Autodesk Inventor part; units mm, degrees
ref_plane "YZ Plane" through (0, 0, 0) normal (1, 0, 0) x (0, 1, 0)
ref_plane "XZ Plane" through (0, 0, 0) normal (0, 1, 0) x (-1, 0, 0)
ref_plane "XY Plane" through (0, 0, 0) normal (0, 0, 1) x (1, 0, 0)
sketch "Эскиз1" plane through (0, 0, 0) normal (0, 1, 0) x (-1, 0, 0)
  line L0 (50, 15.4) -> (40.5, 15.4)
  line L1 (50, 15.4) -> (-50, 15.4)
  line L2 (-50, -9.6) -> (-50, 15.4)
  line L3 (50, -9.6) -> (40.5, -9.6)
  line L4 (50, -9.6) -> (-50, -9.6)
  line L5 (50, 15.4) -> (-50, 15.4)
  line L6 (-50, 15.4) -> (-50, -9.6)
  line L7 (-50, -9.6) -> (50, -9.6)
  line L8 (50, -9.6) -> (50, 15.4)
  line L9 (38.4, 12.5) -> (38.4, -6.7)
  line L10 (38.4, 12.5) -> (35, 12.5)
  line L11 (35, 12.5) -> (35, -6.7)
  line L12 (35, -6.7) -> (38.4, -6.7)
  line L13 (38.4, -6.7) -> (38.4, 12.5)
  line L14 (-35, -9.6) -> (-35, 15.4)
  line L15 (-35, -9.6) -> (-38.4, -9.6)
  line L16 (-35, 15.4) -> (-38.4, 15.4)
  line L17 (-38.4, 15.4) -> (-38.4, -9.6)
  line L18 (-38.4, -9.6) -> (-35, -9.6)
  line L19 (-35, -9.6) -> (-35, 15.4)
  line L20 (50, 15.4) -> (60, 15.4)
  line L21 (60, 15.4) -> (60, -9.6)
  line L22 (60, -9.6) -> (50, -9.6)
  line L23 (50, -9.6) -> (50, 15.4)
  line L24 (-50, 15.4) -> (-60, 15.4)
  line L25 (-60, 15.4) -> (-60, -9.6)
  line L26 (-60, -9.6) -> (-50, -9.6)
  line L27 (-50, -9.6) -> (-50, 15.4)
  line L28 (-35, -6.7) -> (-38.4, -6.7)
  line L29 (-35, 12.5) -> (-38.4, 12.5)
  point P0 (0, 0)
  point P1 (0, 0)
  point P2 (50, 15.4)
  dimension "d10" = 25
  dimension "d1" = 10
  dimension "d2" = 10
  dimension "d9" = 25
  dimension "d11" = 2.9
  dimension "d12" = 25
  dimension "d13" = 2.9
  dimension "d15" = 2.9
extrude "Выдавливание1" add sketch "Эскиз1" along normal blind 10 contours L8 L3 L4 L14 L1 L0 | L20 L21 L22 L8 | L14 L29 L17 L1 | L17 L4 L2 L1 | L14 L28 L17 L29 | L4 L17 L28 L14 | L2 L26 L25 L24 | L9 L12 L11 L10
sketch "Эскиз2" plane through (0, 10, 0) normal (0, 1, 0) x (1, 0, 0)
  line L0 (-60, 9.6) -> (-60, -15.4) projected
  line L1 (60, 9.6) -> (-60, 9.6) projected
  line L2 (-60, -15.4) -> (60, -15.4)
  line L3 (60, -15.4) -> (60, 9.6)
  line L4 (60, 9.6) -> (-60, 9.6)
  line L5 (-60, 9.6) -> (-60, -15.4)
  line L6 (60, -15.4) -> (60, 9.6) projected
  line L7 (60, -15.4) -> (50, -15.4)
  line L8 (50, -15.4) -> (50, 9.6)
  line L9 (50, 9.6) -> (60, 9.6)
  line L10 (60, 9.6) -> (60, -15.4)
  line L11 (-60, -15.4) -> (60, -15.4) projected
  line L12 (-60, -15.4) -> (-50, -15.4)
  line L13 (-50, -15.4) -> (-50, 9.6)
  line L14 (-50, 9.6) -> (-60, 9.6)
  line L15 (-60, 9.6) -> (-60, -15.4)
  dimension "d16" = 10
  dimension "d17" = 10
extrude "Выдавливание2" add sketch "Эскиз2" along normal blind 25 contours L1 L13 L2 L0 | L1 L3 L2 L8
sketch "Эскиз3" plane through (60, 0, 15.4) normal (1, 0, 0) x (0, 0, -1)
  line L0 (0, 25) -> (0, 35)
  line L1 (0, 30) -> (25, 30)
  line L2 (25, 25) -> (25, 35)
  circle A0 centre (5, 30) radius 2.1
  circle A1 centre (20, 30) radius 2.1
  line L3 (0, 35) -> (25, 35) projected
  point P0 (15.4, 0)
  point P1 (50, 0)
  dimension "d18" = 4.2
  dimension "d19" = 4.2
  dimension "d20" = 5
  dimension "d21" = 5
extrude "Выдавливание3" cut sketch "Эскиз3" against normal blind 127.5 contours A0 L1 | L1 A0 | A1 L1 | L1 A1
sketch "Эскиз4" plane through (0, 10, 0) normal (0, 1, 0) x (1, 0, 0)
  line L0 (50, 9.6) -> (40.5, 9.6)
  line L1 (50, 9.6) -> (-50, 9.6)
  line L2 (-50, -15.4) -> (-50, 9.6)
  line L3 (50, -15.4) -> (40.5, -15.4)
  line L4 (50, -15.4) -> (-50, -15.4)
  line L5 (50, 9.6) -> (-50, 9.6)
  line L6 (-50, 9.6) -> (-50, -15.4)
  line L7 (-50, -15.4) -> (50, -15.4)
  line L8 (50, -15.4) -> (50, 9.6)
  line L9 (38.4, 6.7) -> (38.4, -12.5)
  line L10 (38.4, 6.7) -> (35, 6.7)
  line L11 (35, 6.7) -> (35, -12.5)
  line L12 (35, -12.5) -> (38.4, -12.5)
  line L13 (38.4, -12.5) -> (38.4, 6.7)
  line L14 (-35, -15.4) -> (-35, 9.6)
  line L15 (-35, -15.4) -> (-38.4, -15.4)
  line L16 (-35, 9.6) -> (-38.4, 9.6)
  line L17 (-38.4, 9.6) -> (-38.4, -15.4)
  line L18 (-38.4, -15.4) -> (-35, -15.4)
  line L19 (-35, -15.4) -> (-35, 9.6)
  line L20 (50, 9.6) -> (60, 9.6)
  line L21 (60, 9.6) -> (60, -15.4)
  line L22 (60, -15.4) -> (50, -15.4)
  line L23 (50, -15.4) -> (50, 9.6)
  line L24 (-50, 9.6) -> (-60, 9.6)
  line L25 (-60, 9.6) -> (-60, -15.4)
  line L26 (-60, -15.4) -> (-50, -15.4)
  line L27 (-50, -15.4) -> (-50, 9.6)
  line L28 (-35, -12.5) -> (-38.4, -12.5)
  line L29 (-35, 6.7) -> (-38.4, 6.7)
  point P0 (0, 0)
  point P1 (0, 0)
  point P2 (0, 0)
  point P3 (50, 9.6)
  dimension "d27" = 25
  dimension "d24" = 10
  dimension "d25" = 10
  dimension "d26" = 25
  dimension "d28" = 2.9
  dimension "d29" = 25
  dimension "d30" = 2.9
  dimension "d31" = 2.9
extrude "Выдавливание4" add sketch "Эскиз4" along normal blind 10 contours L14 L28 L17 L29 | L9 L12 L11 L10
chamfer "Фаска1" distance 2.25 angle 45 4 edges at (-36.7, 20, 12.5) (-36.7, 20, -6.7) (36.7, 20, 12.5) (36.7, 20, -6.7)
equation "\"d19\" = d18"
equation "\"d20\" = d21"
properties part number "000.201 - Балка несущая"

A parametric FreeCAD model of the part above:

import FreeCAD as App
import Part
import Sketcher
from FreeCAD import Vector
Q = App.Units.Quantity


def edges_at(feature, points):
    """Names of the edges that pass closest to the given points."""
    edges = feature.Shape.Edges
    near = lambda p: min(range(len(edges)), key=lambda i: edges[i].distToShape(Part.Vertex(*p))[0])
    return sorted({f"Edge{near(p) + 1}" for p in points})

doc = App.newDocument("Part")
body = doc.addObject("PartDesign::Body", "Body")

sketch1 = body.newObject("Sketcher::SketchObject", "Sketch")
sketch1.AttachmentSupport = (doc.getObject("XZ_Plane"), [""])
sketch1.MapMode = "FlatFace"
sketch1.addGeometry(Part.LineSegment(Vector(-60, -9.6, 0), Vector(-60, 15.4, 0)), False)
sketch1.addGeometry(Part.LineSegment(Vector(-60, 15.4, 0), Vector(60, 15.4, 0)), False)
sketch1.addGeometry(Part.LineSegment(Vector(60, 15.4, 0), Vector(60, -9.6, 0)), False)
sketch1.addGeometry(Part.LineSegment(Vector(60, -9.6, 0), Vector(-60, -9.6, 0)), False)
sketch1.addConstraint(Sketcher.Constraint("Coincident", 0, 2, 1, 1))
sketch1.addConstraint(Sketcher.Constraint("Coincident", 1, 2, 2, 1))
sketch1.addConstraint(Sketcher.Constraint("Coincident", 2, 2, 3, 1))
sketch1.addConstraint(Sketcher.Constraint("Coincident", 3, 2, 0, 1))
sketch1.addConstraint(Sketcher.Constraint("Vertical", 0))
sketch1.addConstraint(Sketcher.Constraint("Horizontal", 1))
sketch1.addConstraint(Sketcher.Constraint("Vertical", 2))
sketch1.addConstraint(Sketcher.Constraint("Horizontal", 3))
sketch1.addConstraint(Sketcher.Constraint("DistanceY", 0, 1, 0, 2, Q("25 mm")))
sketch1.addConstraint(Sketcher.Constraint("DistanceX", 1, 1, 1, 2, Q("120 mm")))
sketch1.addConstraint(Sketcher.Constraint("DistanceX", 0, 2, -1, 1, Q("60 mm")))
sketch1.addConstraint(Sketcher.Constraint("DistanceY", -1, 1, 0, 2, Q("15.4 mm")))
pad1 = body.newObject("PartDesign::Pad", "Pad")
pad1.Profile = sketch1
pad1.Length = 10
pad1.Reversed = True

sketch2 = body.newObject("Sketcher::SketchObject", "Sketch001")
sketch2.AttachmentSupport = (doc.getObject("XZ_Plane"), [""])
sketch2.MapMode = "FlatFace"
sketch2.AttachmentOffset = App.Placement(Vector(0, 0, -10), App.Rotation())
sketch2.addGeometry(Part.LineSegment(Vector(-50, -9.6, 0), Vector(-60, -9.6, 0)), False)
sketch2.addGeometry(Part.LineSegment(Vector(-60, -9.6, 0), Vector(-60, 15.4, 0)), False)
sketch2.addGeometry(Part.LineSegment(Vector(-60, 15.4, 0), Vector(-50, 15.4, 0)), False)
sketch2.addGeometry(Part.LineSegment(Vector(-50, 15.4, 0), Vector(-50, -9.6, 0)), False)
sketch2.addGeometry(Part.LineSegment(Vector(60, -9.6, 0), Vector(50, -9.6, 0)), False)
sketch2.addGeometry(Part.LineSegment(Vector(50, -9.6, 0), Vector(50, 15.4, 0)), False)
sketch2.addGeometry(Part.LineSegment(Vector(50, 15.4, 0), Vector(60, 15.4, 0)), False)
sketch2.addGeometry(Part.LineSegment(Vector(60, 15.4, 0), Vector(60, -9.6, 0)), False)
sketch2.addConstraint(Sketcher.Constraint("Coincident", 0, 2, 1, 1))
sketch2.addConstraint(Sketcher.Constraint("Coincident", 1, 2, 2, 1))
sketch2.addConstraint(Sketcher.Constraint("Coincident", 2, 2, 3, 1))
sketch2.addConstraint(Sketcher.Constraint("Coincident", 3, 2, 0, 1))
sketch2.addConstraint(Sketcher.Constraint("Coincident", 4, 2, 5, 1))
sketch2.addConstraint(Sketcher.Constraint("Coincident", 5, 2, 6, 1))
sketch2.addConstraint(Sketcher.Constraint("Coincident", 6, 2, 7, 1))
sketch2.addConstraint(Sketcher.Constraint("Coincident", 7, 2, 4, 1))
sketch2.addConstraint(Sketcher.Constraint("Horizontal", 0))
sketch2.addConstraint(Sketcher.Constraint("Vertical", 1))
sketch2.addConstraint(Sketcher.Constraint("Horizontal", 2))
sketch2.addConstraint(Sketcher.Constraint("Vertical", 3))
sketch2.addConstraint(Sketcher.Constraint("Horizontal", 4))
sketch2.addConstraint(Sketcher.Constraint("Vertical", 5))
sketch2.addConstraint(Sketcher.Constraint("Horizontal", 6))
sketch2.addConstraint(Sketcher.Constraint("Vertical", 7))
sketch2.addConstraint(Sketcher.Constraint("Symmetric", 3, 2, 4, 2, -2))
sketch2.addConstraint(Sketcher.Constraint("Symmetric", 1, 2, 6, 2, -2))
sketch2.addConstraint(Sketcher.Constraint("DistanceX", 0, 2, 0, 1, Q("10 mm")))
sketch2.addConstraint(Sketcher.Constraint("DistanceY", 1, 1, 1, 2, Q("25 mm")))
sketch2.addConstraint(Sketcher.Constraint("DistanceX", 0, 2, -1, 1, Q("60 mm")))
sketch2.addConstraint(Sketcher.Constraint("DistanceY", 0, 2, -1, 1, Q("9.6 mm")))
pad2 = body.newObject("PartDesign::Pad", "Pad001")
pad2.Profile = sketch2
pad2.Length = 25
pad2.Reversed = True

sketch3 = body.newObject("Sketcher::SketchObject", "Sketch002")
sketch3.AttachmentSupport = (doc.getObject("YZ_Plane"), [""])
sketch3.MapMode = "FlatFace"
sketch3.AttachmentOffset = App.Placement(Vector(0, 0, 60), App.Rotation())
sketch3.addGeometry(Part.Circle(Vector(30, 10.4, 0), Vector(0, 0, 1), 2.1), False)
sketch3.addGeometry(Part.Circle(Vector(30, -4.6, 0), Vector(0, 0, 1), 2.1), False)
sketch3.addConstraint(Sketcher.Constraint("Equal", 0, 1))
sketch3.addConstraint(Sketcher.Constraint("Vertical", 0, 3, 1, 3))
sketch3.addConstraint(Sketcher.Constraint("Diameter", 0, Q("4.2 mm")))
sketch3.addConstraint(Sketcher.Constraint("DistanceX", -1, 1, 0, 3, Q("30 mm")))
sketch3.addConstraint(Sketcher.Constraint("DistanceY", 1, 3, 0, 3, Q("15 mm")))
sketch3.addConstraint(Sketcher.Constraint("DistanceY", -1, 1, 0, 3, Q("10.4 mm")))
pocket1 = body.newObject("PartDesign::Pocket", "Pocket")
pocket1.Profile = sketch3
pocket1.Length = 127.5

sketch4 = body.newObject("Sketcher::SketchObject", "Sketch003")
sketch4.AttachmentSupport = (doc.getObject("XZ_Plane"), [""])
sketch4.MapMode = "FlatFace"
sketch4.AttachmentOffset = App.Placement(Vector(0, 0, -10), App.Rotation())
sketch4.addGeometry(Part.LineSegment(Vector(-35, 12.5, 0), Vector(-35, -6.7, 0)), False)
sketch4.addGeometry(Part.LineSegment(Vector(-35, -6.7, 0), Vector(-38.4, -6.7, 0)), False)
sketch4.addGeometry(Part.LineSegment(Vector(-38.4, -6.7, 0), Vector(-38.4, 12.5, 0)), False)
sketch4.addGeometry(Part.LineSegment(Vector(-38.4, 12.5, 0), Vector(-35, 12.5, 0)), False)
sketch4.addGeometry(Part.LineSegment(Vector(38.4, 12.5, 0), Vector(38.4, -6.7, 0)), False)
sketch4.addGeometry(Part.LineSegment(Vector(38.4, -6.7, 0), Vector(35, -6.7, 0)), False)
sketch4.addGeometry(Part.LineSegment(Vector(35, -6.7, 0), Vector(35, 12.5, 0)), False)
sketch4.addGeometry(Part.LineSegment(Vector(35, 12.5, 0), Vector(38.4, 12.5, 0)), False)
sketch4.addConstraint(Sketcher.Constraint("Coincident", 0, 2, 1, 1))
sketch4.addConstraint(Sketcher.Constraint("Coincident", 1, 2, 2, 1))
sketch4.addConstraint(Sketcher.Constraint("Coincident", 2, 2, 3, 1))
sketch4.addConstraint(Sketcher.Constraint("Coincident", 3, 2, 0, 1))
sketch4.addConstraint(Sketcher.Constraint("Coincident", 4, 2, 5, 1))
sketch4.addConstraint(Sketcher.Constraint("Coincident", 5, 2, 6, 1))
sketch4.addConstraint(Sketcher.Constraint("Coincident", 6, 2, 7, 1))
sketch4.addConstraint(Sketcher.Constraint("Coincident", 7, 2, 4, 1))
sketch4.addConstraint(Sketcher.Constraint("Vertical", 0))
sketch4.addConstraint(Sketcher.Constraint("Horizontal", 1))
sketch4.addConstraint(Sketcher.Constraint("Vertical", 2))
sketch4.addConstraint(Sketcher.Constraint("Horizontal", 3))
sketch4.addConstraint(Sketcher.Constraint("Vertical", 4))
sketch4.addConstraint(Sketcher.Constraint("Horizontal", 5))
sketch4.addConstraint(Sketcher.Constraint("Vertical", 6))
sketch4.addConstraint(Sketcher.Constraint("Horizontal", 7))
sketch4.addConstraint(Sketcher.Constraint("Symmetric", 1, 2, 4, 2, -2))
sketch4.addConstraint(Sketcher.Constraint("Symmetric", 3, 2, 6, 2, -2))
sketch4.addConstraint(Sketcher.Constraint("DistanceX", 1, 2, 1, 1, Q("3.4 mm")))
sketch4.addConstraint(Sketcher.Constraint("DistanceY", 0, 2, 0, 1, Q("19.2 mm")))
sketch4.addConstraint(Sketcher.Constraint("DistanceX", 0, 2, -1, 1, Q("35 mm")))
sketch4.addConstraint(Sketcher.Constraint("DistanceY", 0, 2, -1, 1, Q("6.7 mm")))
pad3 = body.newObject("PartDesign::Pad", "Pad002")
pad3.Profile = sketch4
pad3.Length = 10
pad3.Reversed = True
doc.recompute()

chamfer = body.newObject("PartDesign::Chamfer", "Chamfer")
chamfer.Base = (pad3, edges_at(pad3, [
    (-36.7, 20, 12.5),
    (-36.7, 20, -6.7),
    (36.7, 20, 12.5),
    (36.7, 20, -6.7),
]))
chamfer.Size = 2.25

doc.recompute()
